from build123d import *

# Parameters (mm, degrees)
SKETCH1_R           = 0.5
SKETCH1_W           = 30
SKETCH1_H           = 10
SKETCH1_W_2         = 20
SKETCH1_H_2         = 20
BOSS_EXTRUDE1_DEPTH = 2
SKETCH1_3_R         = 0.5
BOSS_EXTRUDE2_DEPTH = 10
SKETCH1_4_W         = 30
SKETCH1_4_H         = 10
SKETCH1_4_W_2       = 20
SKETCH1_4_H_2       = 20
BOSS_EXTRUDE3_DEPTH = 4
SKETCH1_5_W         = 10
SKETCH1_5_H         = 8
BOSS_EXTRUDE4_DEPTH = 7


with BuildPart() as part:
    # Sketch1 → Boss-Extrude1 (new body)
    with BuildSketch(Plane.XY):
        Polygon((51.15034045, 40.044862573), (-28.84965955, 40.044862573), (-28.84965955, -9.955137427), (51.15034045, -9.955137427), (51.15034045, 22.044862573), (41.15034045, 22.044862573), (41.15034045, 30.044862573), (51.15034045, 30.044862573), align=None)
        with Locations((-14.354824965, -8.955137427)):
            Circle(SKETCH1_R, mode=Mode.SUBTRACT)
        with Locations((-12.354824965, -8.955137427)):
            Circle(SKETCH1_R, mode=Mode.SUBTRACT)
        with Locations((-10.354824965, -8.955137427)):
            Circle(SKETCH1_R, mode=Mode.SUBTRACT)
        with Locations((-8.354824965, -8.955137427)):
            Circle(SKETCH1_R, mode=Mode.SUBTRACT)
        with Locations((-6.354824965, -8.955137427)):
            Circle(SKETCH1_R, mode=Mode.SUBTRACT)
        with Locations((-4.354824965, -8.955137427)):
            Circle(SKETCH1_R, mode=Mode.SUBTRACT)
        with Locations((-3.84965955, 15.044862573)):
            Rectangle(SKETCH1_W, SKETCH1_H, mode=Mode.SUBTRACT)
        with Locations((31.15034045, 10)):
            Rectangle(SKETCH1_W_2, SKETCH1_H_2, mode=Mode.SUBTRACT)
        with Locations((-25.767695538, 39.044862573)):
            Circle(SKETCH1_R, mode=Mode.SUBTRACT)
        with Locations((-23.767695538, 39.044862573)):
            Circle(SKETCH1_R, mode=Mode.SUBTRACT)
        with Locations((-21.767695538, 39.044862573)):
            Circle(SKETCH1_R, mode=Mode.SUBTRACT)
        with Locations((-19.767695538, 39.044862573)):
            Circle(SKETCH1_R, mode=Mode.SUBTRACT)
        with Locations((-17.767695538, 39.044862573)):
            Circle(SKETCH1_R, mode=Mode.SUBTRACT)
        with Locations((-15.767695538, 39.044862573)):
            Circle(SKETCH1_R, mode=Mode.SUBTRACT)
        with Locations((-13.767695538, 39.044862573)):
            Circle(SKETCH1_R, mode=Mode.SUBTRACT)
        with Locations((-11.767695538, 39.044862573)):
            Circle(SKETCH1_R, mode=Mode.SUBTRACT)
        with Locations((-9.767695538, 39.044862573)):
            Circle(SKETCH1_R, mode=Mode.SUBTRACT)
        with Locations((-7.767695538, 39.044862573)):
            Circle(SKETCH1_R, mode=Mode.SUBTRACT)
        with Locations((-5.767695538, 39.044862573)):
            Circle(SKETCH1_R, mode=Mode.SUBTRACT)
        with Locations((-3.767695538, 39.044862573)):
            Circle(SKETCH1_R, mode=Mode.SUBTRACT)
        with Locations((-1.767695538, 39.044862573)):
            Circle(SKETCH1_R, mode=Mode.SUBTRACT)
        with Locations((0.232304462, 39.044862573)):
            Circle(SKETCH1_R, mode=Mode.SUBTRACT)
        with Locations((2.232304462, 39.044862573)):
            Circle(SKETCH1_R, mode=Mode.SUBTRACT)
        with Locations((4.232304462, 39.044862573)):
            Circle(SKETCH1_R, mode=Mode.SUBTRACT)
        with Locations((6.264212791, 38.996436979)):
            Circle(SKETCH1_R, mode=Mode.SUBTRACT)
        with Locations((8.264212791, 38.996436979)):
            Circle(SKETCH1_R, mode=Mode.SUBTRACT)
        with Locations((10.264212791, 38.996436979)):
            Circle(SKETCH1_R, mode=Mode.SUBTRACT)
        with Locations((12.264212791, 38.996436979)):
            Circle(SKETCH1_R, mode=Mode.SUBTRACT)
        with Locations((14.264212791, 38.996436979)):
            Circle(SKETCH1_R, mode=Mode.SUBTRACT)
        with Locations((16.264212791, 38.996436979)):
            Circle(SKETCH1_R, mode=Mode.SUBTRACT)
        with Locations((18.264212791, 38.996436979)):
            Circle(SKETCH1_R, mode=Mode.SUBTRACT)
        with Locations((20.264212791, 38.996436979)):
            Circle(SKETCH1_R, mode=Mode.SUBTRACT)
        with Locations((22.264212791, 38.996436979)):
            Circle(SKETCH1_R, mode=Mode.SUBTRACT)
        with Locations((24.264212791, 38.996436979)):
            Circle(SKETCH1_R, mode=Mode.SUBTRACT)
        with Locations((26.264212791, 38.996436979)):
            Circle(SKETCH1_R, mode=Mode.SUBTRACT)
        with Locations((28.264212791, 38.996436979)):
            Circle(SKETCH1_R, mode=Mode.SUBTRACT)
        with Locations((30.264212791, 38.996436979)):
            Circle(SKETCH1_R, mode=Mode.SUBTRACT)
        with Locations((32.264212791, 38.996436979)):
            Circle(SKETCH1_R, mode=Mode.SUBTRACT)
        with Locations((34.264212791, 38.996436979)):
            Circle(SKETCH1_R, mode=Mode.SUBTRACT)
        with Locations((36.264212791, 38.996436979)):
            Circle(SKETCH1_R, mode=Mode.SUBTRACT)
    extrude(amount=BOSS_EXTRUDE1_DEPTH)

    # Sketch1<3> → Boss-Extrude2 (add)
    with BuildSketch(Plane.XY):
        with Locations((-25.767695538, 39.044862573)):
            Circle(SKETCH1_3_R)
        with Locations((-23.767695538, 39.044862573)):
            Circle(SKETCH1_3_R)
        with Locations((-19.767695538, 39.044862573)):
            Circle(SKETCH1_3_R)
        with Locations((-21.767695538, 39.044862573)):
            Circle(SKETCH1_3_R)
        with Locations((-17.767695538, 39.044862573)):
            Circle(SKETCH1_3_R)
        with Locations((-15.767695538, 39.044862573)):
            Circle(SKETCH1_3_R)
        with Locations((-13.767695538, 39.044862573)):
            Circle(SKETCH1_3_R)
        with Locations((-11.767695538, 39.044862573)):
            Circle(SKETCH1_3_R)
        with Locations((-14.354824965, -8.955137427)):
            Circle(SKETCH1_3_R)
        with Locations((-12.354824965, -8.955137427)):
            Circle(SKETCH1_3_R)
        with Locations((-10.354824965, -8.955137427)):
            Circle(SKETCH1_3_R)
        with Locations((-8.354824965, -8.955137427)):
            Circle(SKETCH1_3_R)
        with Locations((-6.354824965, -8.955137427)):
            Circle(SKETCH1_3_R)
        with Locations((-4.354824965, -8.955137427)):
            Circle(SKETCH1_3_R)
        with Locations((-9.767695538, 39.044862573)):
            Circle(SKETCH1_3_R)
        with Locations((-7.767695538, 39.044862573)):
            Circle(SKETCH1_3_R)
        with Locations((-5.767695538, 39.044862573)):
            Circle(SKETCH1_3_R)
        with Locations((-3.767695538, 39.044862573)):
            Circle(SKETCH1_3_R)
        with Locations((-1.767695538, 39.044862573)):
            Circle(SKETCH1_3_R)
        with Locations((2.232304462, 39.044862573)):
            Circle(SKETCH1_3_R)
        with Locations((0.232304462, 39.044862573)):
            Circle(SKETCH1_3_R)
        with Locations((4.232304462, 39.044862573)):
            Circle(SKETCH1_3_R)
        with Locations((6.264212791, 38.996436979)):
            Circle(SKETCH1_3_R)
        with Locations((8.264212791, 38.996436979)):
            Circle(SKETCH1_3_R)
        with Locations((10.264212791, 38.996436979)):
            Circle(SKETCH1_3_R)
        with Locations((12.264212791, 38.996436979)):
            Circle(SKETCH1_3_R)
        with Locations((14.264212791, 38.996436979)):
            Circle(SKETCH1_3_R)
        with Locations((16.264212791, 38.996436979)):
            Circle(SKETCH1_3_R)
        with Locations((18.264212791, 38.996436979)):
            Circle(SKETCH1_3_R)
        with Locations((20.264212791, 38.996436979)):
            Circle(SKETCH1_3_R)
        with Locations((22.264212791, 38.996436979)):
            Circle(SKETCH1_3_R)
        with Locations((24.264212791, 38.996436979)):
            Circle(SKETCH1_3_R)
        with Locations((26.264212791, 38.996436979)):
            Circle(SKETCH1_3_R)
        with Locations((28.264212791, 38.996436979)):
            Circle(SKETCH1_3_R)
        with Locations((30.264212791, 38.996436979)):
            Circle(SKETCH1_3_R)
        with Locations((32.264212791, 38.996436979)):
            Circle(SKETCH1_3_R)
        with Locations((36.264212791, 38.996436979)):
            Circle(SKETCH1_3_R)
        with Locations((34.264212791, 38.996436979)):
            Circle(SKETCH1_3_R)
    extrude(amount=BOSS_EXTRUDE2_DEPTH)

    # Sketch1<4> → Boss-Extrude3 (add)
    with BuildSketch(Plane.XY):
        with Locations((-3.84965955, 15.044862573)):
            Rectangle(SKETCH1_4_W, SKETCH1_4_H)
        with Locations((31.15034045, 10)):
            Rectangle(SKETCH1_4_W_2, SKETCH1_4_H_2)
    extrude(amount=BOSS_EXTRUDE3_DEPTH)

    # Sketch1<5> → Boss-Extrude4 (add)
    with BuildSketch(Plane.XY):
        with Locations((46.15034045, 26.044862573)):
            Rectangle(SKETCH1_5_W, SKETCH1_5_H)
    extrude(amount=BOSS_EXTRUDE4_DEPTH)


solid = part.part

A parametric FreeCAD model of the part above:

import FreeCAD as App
import Part
import Sketcher

V = App.Vector
Q = App.Units.Quantity


def add_polygon(sketch, points):
    """Adds a closed chain of lines whose ends are joined by coincident constraints."""
    first, n = sketch.GeometryCount, len(points)
    for a, b in zip(points, points[1:] + points[:1]):
        sketch.addGeometry(Part.LineSegment(App.Vector(*a, 0), App.Vector(*b, 0)), False)
    for i in range(n):
        sketch.addConstraint(Sketcher.Constraint("Coincident", first + i, 2, first + (i + 1) % n, 1))

doc = App.newDocument("Part")
body = doc.addObject("PartDesign::Body", "Body")

sketch1 = body.newObject("Sketcher::SketchObject", "Sketch")
sketch1.AttachmentSupport = (doc.getObject("XY_Plane"), [""])
sketch1.MapMode = "FlatFace"
add_polygon(sketch1, [(51.2, 40), (-28.8, 40), (-28.8, -10), (51.2, -10), (51.2, 22), (41.2, 22), (41.2, 30), (51.2, 30)])
sketch1.addGeometry(Part.Circle(V(-14.4, -9, 0), V(0, 0, 1), 0.5), False)
sketch1.addGeometry(Part.Circle(V(-12.4, -9, 0), V(0, 0, 1), 0.5), False)
sketch1.addGeometry(Part.Circle(V(-10.4, -9, 0), V(0, 0, 1), 0.5), False)
sketch1.addGeometry(Part.Circle(V(-8.4, -9, 0), V(0, 0, 1), 0.5), False)
sketch1.addGeometry(Part.Circle(V(-6.4, -9, 0), V(0, 0, 1), 0.5), False)
sketch1.addGeometry(Part.Circle(V(-4.4, -9, 0), V(0, 0, 1), 0.5), False)
add_polygon(sketch1, [(11.2, 10), (-18.8, 10), (-18.8, 20), (11.2, 20)])
add_polygon(sketch1, [(41.2, 0), (21.2, 0), (21.2, 20), (41.2, 20)])
sketch1.addGeometry(Part.Circle(V(-25.8, 39, 0), V(0, 0, 1), 0.5), False)
sketch1.addGeometry(Part.Circle(V(-23.8, 39, 0), V(0, 0, 1), 0.5), False)
sketch1.addGeometry(Part.Circle(V(-21.8, 39, 0), V(0, 0, 1), 0.5), False)
sketch1.addGeometry(Part.Circle(V(-19.8, 39, 0), V(0, 0, 1), 0.5), False)
sketch1.addGeometry(Part.Circle(V(-17.8, 39, 0), V(0, 0, 1), 0.5), False)
sketch1.addGeometry(Part.Circle(V(-15.8, 39, 0), V(0, 0, 1), 0.5), False)
sketch1.addGeometry(Part.Circle(V(-13.8, 39, 0), V(0, 0, 1), 0.5), False)
sketch1.addGeometry(Part.Circle(V(-11.8, 39, 0), V(0, 0, 1), 0.5), False)
sketch1.addGeometry(Part.Circle(V(-9.8, 39, 0), V(0, 0, 1), 0.5), False)
sketch1.addGeometry(Part.Circle(V(-7.8, 39, 0), V(0, 0, 1), 0.5), False)
sketch1.addGeometry(Part.Circle(V(-5.8, 39, 0), V(0, 0, 1), 0.5), False)
sketch1.addGeometry(Part.Circle(V(-3.8, 39, 0), V(0, 0, 1), 0.5), False)
sketch1.addGeometry(Part.Circle(V(-1.8, 39, 0), V(0, 0, 1), 0.5), False)
sketch1.addGeometry(Part.Circle(V(0.2, 39, 0), V(0, 0, 1), 0.5), False)
sketch1.addGeometry(Part.Circle(V(2.2, 39, 0), V(0, 0, 1), 0.5), False)
sketch1.addGeometry(Part.Circle(V(4.2, 39, 0), V(0, 0, 1), 0.5), False)
sketch1.addGeometry(Part.Circle(V(6.3, 39, 0), V(0, 0, 1), 0.5), False)
sketch1.addGeometry(Part.Circle(V(8.3, 39, 0), V(0, 0, 1), 0.5), False)
sketch1.addGeometry(Part.Circle(V(10.3, 39, 0), V(0, 0, 1), 0.5), False)
sketch1.addGeometry(Part.Circle(V(12.3, 39, 0), V(0, 0, 1), 0.5), False)
sketch1.addGeometry(Part.Circle(V(14.3, 39, 0), V(0, 0, 1), 0.5), False)
sketch1.addGeometry(Part.Circle(V(16.3, 39, 0), V(0, 0, 1), 0.5), False)
sketch1.addGeometry(Part.Circle(V(18.3, 39, 0), V(0, 0, 1), 0.5), False)
sketch1.addGeometry(Part.Circle(V(20.3, 39, 0), V(0, 0, 1), 0.5), False)
sketch1.addGeometry(Part.Circle(V(22.3, 39, 0), V(0, 0, 1), 0.5), False)
sketch1.addGeometry(Part.Circle(V(24.3, 39, 0), V(0, 0, 1), 0.5), False)
sketch1.addGeometry(Part.Circle(V(26.3, 39, 0), V(0, 0, 1), 0.5), False)
sketch1.addGeometry(Part.Circle(V(28.3, 39, 0), V(0, 0, 1), 0.5), False)
sketch1.addGeometry(Part.Circle(V(30.3, 39, 0), V(0, 0, 1), 0.5), False)
sketch1.addGeometry(Part.Circle(V(32.3, 39, 0), V(0, 0, 1), 0.5), False)
sketch1.addGeometry(Part.Circle(V(34.3, 39, 0), V(0, 0, 1), 0.5), False)
sketch1.addGeometry(Part.Circle(V(36.3, 39, 0), V(0, 0, 1), 0.5), False)
sketch1.addConstraint(Sketcher.Constraint("Horizontal", 0))
sketch1.addConstraint(Sketcher.Constraint("Vertical", 1))
sketch1.addConstraint(Sketcher.Constraint("Horizontal", 2))
sketch1.addConstraint(Sketcher.Constraint("Vertical", 3))
sketch1.addConstraint(Sketcher.Constraint("Horizontal", 4))
sketch1.addConstraint(Sketcher.Constraint("Vertical", 5))
sketch1.addConstraint(Sketcher.Constraint("Horizontal", 6))
sketch1.addConstraint(Sketcher.Constraint("Vertical", 7))
sketch1.addConstraint(Sketcher.Constraint("Horizontal", 14))
sketch1.addConstraint(Sketcher.Constraint("Vertical", 15))
sketch1.addConstraint(Sketcher.Constraint("Horizontal", 16))
sketch1.addConstraint(Sketcher.Constraint("Vertical", 17))
sketch1.addConstraint(Sketcher.Constraint("Horizontal", 18))
sketch1.addConstraint(Sketcher.Constraint("Vertical", 19))
sketch1.addConstraint(Sketcher.Constraint("Horizontal", 20))
sketch1.addConstraint(Sketcher.Constraint("Vertical", 21))
sketch1.addConstraint(Sketcher.Constraint("Equal", 8, 9))
sketch1.addConstraint(Sketcher.Constraint("Equal", 9, 10))
sketch1.addConstraint(Sketcher.Constraint("Equal", 10, 11))
sketch1.addConstraint(Sketcher.Constraint("Equal", 11, 12))
sketch1.addConstraint(Sketcher.Constraint("Equal", 12, 13))
sketch1.addConstraint(Sketcher.Constraint("Equal", 13, 22))
sketch1.addConstraint(Sketcher.Constraint("Equal", 22, 23))
sketch1.addConstraint(Sketcher.Constraint("Equal", 23, 24))
sketch1.addConstraint(Sketcher.Constraint("Equal", 24, 25))
sketch1.addConstraint(Sketcher.Constraint("Equal", 25, 26))
sketch1.addConstraint(Sketcher.Constraint("Equal", 26, 27))
sketch1.addConstraint(Sketcher.Constraint("Equal", 27, 28))
sketch1.addConstraint(Sketcher.Constraint("Equal", 28, 29))
sketch1.addConstraint(Sketcher.Constraint("Equal", 29, 30))
sketch1.addConstraint(Sketcher.Constraint("Equal", 30, 31))
sketch1.addConstraint(Sketcher.Constraint("Equal", 31, 32))
sketch1.addConstraint(Sketcher.Constraint("Equal", 32, 33))
sketch1.addConstraint(Sketcher.Constraint("Equal", 33, 34))
sketch1.addConstraint(Sketcher.Constraint("Equal", 34, 35))
sketch1.addConstraint(Sketcher.Constraint("Equal", 35, 36))
sketch1.addConstraint(Sketcher.Constraint("Equal", 36, 37))
sketch1.addConstraint(Sketcher.Constraint("Equal", 37, 38))
sketch1.addConstraint(Sketcher.Constraint("Equal", 38, 39))
sketch1.addConstraint(Sketcher.Constraint("Equal", 39, 40))
sketch1.addConstraint(Sketcher.Constraint("Equal", 40, 41))
sketch1.addConstraint(Sketcher.Constraint("Equal", 41, 42))
sketch1.addConstraint(Sketcher.Constraint("Equal", 42, 43))
sketch1.addConstraint(Sketcher.Constraint("Equal", 43, 44))
sketch1.addConstraint(Sketcher.Constraint("Equal", 44, 45))
sketch1.addConstraint(Sketcher.Constraint("Equal", 45, 46))
sketch1.addConstraint(Sketcher.Constraint("Equal", 46, 47))
sketch1.addConstraint(Sketcher.Constraint("Equal", 47, 48))
sketch1.addConstraint(Sketcher.Constraint("Equal", 48, 49))
sketch1.addConstraint(Sketcher.Constraint("Equal", 49, 50))
sketch1.addConstraint(Sketcher.Constraint("Equal", 50, 51))
sketch1.addConstraint(Sketcher.Constraint("Equal", 51, 52))
sketch1.addConstraint(Sketcher.Constraint("Equal", 52, 53))
sketch1.addConstraint(Sketcher.Constraint("PointOnObject", 18, 2, -1))
sketch1.addConstraint(Sketcher.Constraint("Horizontal", 8, 3, 9, 3))
sketch1.addConstraint(Sketcher.Constraint("Horizontal", 9, 3, 10, 3))
sketch1.addConstraint(Sketcher.Constraint("Horizontal", 10, 3, 11, 3))
sketch1.addConstraint(Sketcher.Constraint("Horizontal", 11, 3, 12, 3))
sketch1.addConstraint(Sketcher.Constraint("Horizontal", 12, 3, 13, 3))
sketch1.addConstraint(Sketcher.Constraint("Horizontal", 22, 3, 23, 3))
sketch1.addConstraint(Sketcher.Constraint("Horizontal", 23, 3, 24, 3))
sketch1.addConstraint(Sketcher.Constraint("Horizontal", 24, 3, 25, 3))
sketch1.addConstraint(Sketcher.Constraint("Horizontal", 25, 3, 26, 3))
sketch1.addConstraint(Sketcher.Constraint("Horizontal", 26, 3, 27, 3))
sketch1.addConstraint(Sketcher.Constraint("Horizontal", 27, 3, 28, 3))
sketch1.addConstraint(Sketcher.Constraint("Horizontal", 28, 3, 29, 3))
sketch1.addConstraint(Sketcher.Constraint("Horizontal", 29, 3, 30, 3))
sketch1.addConstraint(Sketcher.Constraint("Horizontal", 30, 3, 31, 3))
sketch1.addConstraint(Sketcher.Constraint("Horizontal", 31, 3, 32, 3))
sketch1.addConstraint(Sketcher.Constraint("Horizontal", 32, 3, 33, 3))
sketch1.addConstraint(Sketcher.Constraint("Horizontal", 33, 3, 34, 3))
sketch1.addConstraint(Sketcher.Constraint("Horizontal", 34, 3, 35, 3))
sketch1.addConstraint(Sketcher.Constraint("Horizontal", 35, 3, 36, 3))
sketch1.addConstraint(Sketcher.Constraint("Horizontal", 36, 3, 37, 3))
sketch1.addConstraint(Sketcher.Constraint("Horizontal", 38, 3, 39, 3))
sketch1.addConstraint(Sketcher.Constraint("Horizontal", 39, 3, 40, 3))
sketch1.addConstraint(Sketcher.Constraint("Horizontal", 40, 3, 41, 3))
sketch1.addConstraint(Sketcher.Constraint("Horizontal", 41, 3, 42, 3))
sketch1.addConstraint(Sketcher.Constraint("Horizontal", 42, 3, 43, 3))
sketch1.addConstraint(Sketcher.Constraint("Horizontal", 43, 3, 44, 3))
sketch1.addConstraint(Sketcher.Constraint("Horizontal", 44, 3, 45, 3))
sketch1.addConstraint(Sketcher.Constraint("Horizontal", 45, 3, 46, 3))
sketch1.addConstraint(Sketcher.Constraint("Horizontal", 46, 3, 47, 3))
sketch1.addConstraint(Sketcher.Constraint("Horizontal", 47, 3, 48, 3))
sketch1.addConstraint(Sketcher.Constraint("Horizontal", 48, 3, 49, 3))
sketch1.addConstraint(Sketcher.Constraint("Horizontal", 49, 3, 50, 3))
sketch1.addConstraint(Sketcher.Constraint("Horizontal", 50, 3, 51, 3))
sketch1.addConstraint(Sketcher.Constraint("Horizontal", 51, 3, 52, 3))
sketch1.addConstraint(Sketcher.Constraint("Horizontal", 52, 3, 53, 3))
sketch1.addConstraint(Sketcher.Constraint("Vertical", 3, 2, 6, 2))
sketch1.addConstraint(Sketcher.Constraint("Vertical", 5, 2, 20, 2))
sketch1.addConstraint(Sketcher.Constraint("Equal", 6, 7))
sketch1.addConstraint(Sketcher.Constraint("Equal", 7, 15))
sketch1.addConstraint(Sketcher.Constraint("Equal", 20, 19))
sketch1.addConstraint(Sketcher.Constraint("Diameter", 8, Q("1 mm")))
sketch1.addConstraint(Sketcher.Constraint("DistanceX", 0, 2, 0, 1, Q("80 mm")))
sketch1.addConstraint(Sketcher.Constraint("DistanceX", 4, 2, 4, 1, Q("10 mm")))
sketch1.addConstraint(Sketcher.Constraint("DistanceX", 14, 2, 14, 1, Q("30 mm")))
sketch1.addConstraint(Sketcher.Constraint("DistanceX", 18, 2, 18, 1, Q("20 mm")))
sketch1.addConstraint(Sketcher.Constraint("DistanceY", 1, 2, 1, 1, Q("50 mm")))
sketch1.addConstraint(Sketcher.Constraint("DistanceY", 3, 1, 3, 2, Q("32 mm")))
sketch1.addConstraint(Sketcher.Constraint("DistanceX", 8, 3, 9, 3, Q("2 mm")))
sketch1.addConstraint(Sketcher.Constraint("DistanceX", 9, 3, 10, 3, Q("2 mm")))
sketch1.addConstraint(Sketcher.Constraint("DistanceX", 10, 3, 11, 3, Q("2 mm")))
sketch1.addConstraint(Sketcher.Constraint("DistanceX", 11, 3, 12, 3, Q("2 mm")))
sketch1.addConstraint(Sketcher.Constraint("DistanceX", 12, 3, 13, 3, Q("2 mm")))
sketch1.addConstraint(Sketcher.Constraint("DistanceY", 8, 3, 22, 3, Q("48 mm")))
sketch1.addConstraint(Sketcher.Constraint("DistanceX", 22, 3, 23, 3, Q("2 mm")))
sketch1.addConstraint(Sketcher.Constraint("DistanceX", 23, 3, 24, 3, Q("2 mm")))
sketch1.addConstraint(Sketcher.Constraint("DistanceX", 24, 3, 25, 3, Q("2 mm")))
sketch1.addConstraint(Sketcher.Constraint("DistanceX", 25, 3, 26, 3, Q("2 mm")))
sketch1.addConstraint(Sketcher.Constraint("DistanceX", 26, 3, 27, 3, Q("2 mm")))
sketch1.addConstraint(Sketcher.Constraint("DistanceX", 27, 3, 28, 3, Q("2 mm")))
sketch1.addConstraint(Sketcher.Constraint("DistanceX", 28, 3, 29, 3, Q("2 mm")))
sketch1.addConstraint(Sketcher.Constraint("DistanceX", 29, 3, 30, 3, Q("2 mm")))
sketch1.addConstraint(Sketcher.Constraint("DistanceX", 30, 3, 31, 3, Q("2 mm")))
sketch1.addConstraint(Sketcher.Constraint("DistanceX", 31, 3, 32, 3, Q("2 mm")))
sketch1.addConstraint(Sketcher.Constraint("DistanceX", 32, 3, 33, 3, Q("2 mm")))
sketch1.addConstraint(Sketcher.Constraint("DistanceX", 33, 3, 34, 3, Q("2 mm")))
sketch1.addConstraint(Sketcher.Constraint("DistanceX", 34, 3, 35, 3, Q("2 mm")))
sketch1.addConstraint(Sketcher.Constraint("DistanceX", 35, 3, 36, 3, Q("2 mm")))
sketch1.addConstraint(Sketcher.Constraint("DistanceX", 36, 3, 37, 3, Q("2 mm")))
sketch1.addConstraint(Sketcher.Constraint("DistanceX", 38, 3, 39, 3, Q("2 mm")))
sketch1.addConstraint(Sketcher.Constraint("DistanceX", 39, 3, 40, 3, Q("2 mm")))
sketch1.addConstraint(Sketcher.Constraint("DistanceX", 40, 3, 41, 3, Q("2 mm")))
sketch1.addConstraint(Sketcher.Constraint("DistanceX", 41, 3, 42, 3, Q("2 mm")))
sketch1.addConstraint(Sketcher.Constraint("DistanceX", 42, 3, 43, 3, Q("2 mm")))
sketch1.addConstraint(Sketcher.Constraint("DistanceX", 43, 3, 44, 3, Q("2 mm")))
sketch1.addConstraint(Sketcher.Constraint("DistanceX", 44, 3, 45, 3, Q("2 mm")))
sketch1.addConstraint(Sketcher.Constraint("DistanceX", 45, 3, 46, 3, Q("2 mm")))
sketch1.addConstraint(Sketcher.Constraint("DistanceX", 46, 3, 47, 3, Q("2 mm")))
sketch1.addConstraint(Sketcher.Constraint("DistanceX", 47, 3, 48, 3, Q("2 mm")))
sketch1.addConstraint(Sketcher.Constraint("DistanceX", 48, 3, 49, 3, Q("2 mm")))
sketch1.addConstraint(Sketcher.Constraint("DistanceX", 49, 3, 50, 3, Q("2 mm")))
sketch1.addConstraint(Sketcher.Constraint("DistanceX", 50, 3, 51, 3, Q("2 mm")))
sketch1.addConstraint(Sketcher.Constraint("DistanceX", 51, 3, 52, 3, Q("2 mm")))
sketch1.addConstraint(Sketcher.Constraint("DistanceX", 52, 3, 53, 3, Q("2 mm")))
sketch1.addConstraint(Sketcher.Constraint("DistanceY", 22, 3, 0, 2, Q("1 mm")))
sketch1.addConstraint(Sketcher.Constraint("DistanceY", 8, 3, 14, 2, Q("19 mm")))
sketch1.addConstraint(Sketcher.Constraint("DistanceX", 1, 2, 14, 2, Q("10 mm")))
sketch1.addConstraint(Sketcher.Constraint("DistanceX", 0, 2, -1, 1, Q("28.84966 mm")))
sketch1.addConstraint(Sketcher.Constraint("DistanceX", 22, 3, 8, 3, Q("11.412871 mm")))
sketch1.addConstraint(Sketcher.Constraint("DistanceX", 37, 3, 38, 3, Q("2.031908 mm")))
sketch1.addConstraint(Sketcher.Constraint("DistanceX", 8, 3, -1, 1, Q("14.354825 mm")))
sketch1.addConstraint(Sketcher.Constraint("DistanceY", 8, 3, -1, 1, Q("8.955137 mm")))
sketch1.addConstraint(Sketcher.Constraint("DistanceY", -1, 1, 38, 3, Q("38.996437 mm")))
pad1 = body.newObject("PartDesign::Pad", "Pad")
pad1.Profile = sketch1
pad1.Length = 2

sketch2 = body.newObject("Sketcher::SketchObject", "Sketch001")
sketch2.AttachmentSupport = (doc.getObject("XY_Plane"), [""])
sketch2.MapMode = "FlatFace"
sketch2.addGeometry(Part.Circle(V(-25.8, 39, 0), V(0, 0, 1), 0.5), False)
sketch2.addGeometry(Part.Circle(V(-23.8, 39, 0), V(0, 0, 1), 0.5), False)
sketch2.addGeometry(Part.Circle(V(-19.8, 39, 0), V(0, 0, 1), 0.5), False)
sketch2.addGeometry(Part.Circle(V(-21.8, 39, 0), V(0, 0, 1), 0.5), False)
sketch2.addGeometry(Part.Circle(V(-17.8, 39, 0), V(0, 0, 1), 0.5), False)
sketch2.addGeometry(Part.Circle(V(-15.8, 39, 0), V(0, 0, 1), 0.5), False)
sketch2.addGeometry(Part.Circle(V(-13.8, 39, 0), V(0, 0, 1), 0.5), False)
sketch2.addGeometry(Part.Circle(V(-11.8, 39, 0), V(0, 0, 1), 0.5), False)
sketch2.addGeometry(Part.Circle(V(-14.4, -9, 0), V(0, 0, 1), 0.5), False)
sketch2.addGeometry(Part.Circle(V(-12.4, -9, 0), V(0, 0, 1), 0.5), False)
sketch2.addGeometry(Part.Circle(V(-10.4, -9, 0), V(0, 0, 1), 0.5), False)
sketch2.addGeometry(Part.Circle(V(-8.4, -9, 0), V(0, 0, 1), 0.5), False)
sketch2.addGeometry(Part.Circle(V(-6.4, -9, 0), V(0, 0, 1), 0.5), False)
sketch2.addGeometry(Part.Circle(V(-4.4, -9, 0), V(0, 0, 1), 0.5), False)
sketch2.addGeometry(Part.Circle(V(-9.8, 39, 0), V(0, 0, 1), 0.5), False)
sketch2.addGeometry(Part.Circle(V(-7.8, 39, 0), V(0, 0, 1), 0.5), False)
sketch2.addGeometry(Part.Circle(V(-5.8, 39, 0), V(0, 0, 1), 0.5), False)
sketch2.addGeometry(Part.Circle(V(-3.8, 39, 0), V(0, 0, 1), 0.5), False)
sketch2.addGeometry(Part.Circle(V(-1.8, 39, 0), V(0, 0, 1), 0.5), False)
sketch2.addGeometry(Part.Circle(V(2.2, 39, 0), V(0, 0, 1), 0.5), False)
sketch2.addGeometry(Part.Circle(V(0.2, 39, 0), V(0, 0, 1), 0.5), False)
sketch2.addGeometry(Part.Circle(V(4.2, 39, 0), V(0, 0, 1), 0.5), False)
sketch2.addGeometry(Part.Circle(V(6.3, 39, 0), V(0, 0, 1), 0.5), False)
sketch2.addGeometry(Part.Circle(V(8.3, 39, 0), V(0, 0, 1), 0.5), False)
sketch2.addGeometry(Part.Circle(V(10.3, 39, 0), V(0, 0, 1), 0.5), False)
sketch2.addGeometry(Part.Circle(V(12.3, 39, 0), V(0, 0, 1), 0.5), False)
sketch2.addGeometry(Part.Circle(V(14.3, 39, 0), V(0, 0, 1), 0.5), False)
sketch2.addGeometry(Part.Circle(V(16.3, 39, 0), V(0, 0, 1), 0.5), False)
sketch2.addGeometry(Part.Circle(V(18.3, 39, 0), V(0, 0, 1), 0.5), False)
sketch2.addGeometry(Part.Circle(V(20.3, 39, 0), V(0, 0, 1), 0.5), False)
sketch2.addGeometry(Part.Circle(V(22.3, 39, 0), V(0, 0, 1), 0.5), False)
sketch2.addGeometry(Part.Circle(V(24.3, 39, 0), V(0, 0, 1), 0.5), False)
sketch2.addGeometry(Part.Circle(V(26.3, 39, 0), V(0, 0, 1), 0.5), False)
sketch2.addGeometry(Part.Circle(V(28.3, 39, 0), V(0, 0, 1), 0.5), False)
sketch2.addGeometry(Part.Circle(V(30.3, 39, 0), V(0, 0, 1), 0.5), False)
sketch2.addGeometry(Part.Circle(V(32.3, 39, 0), V(0, 0, 1), 0.5), False)
sketch2.addGeometry(Part.Circle(V(36.3, 39, 0), V(0, 0, 1), 0.5), False)
sketch2.addGeometry(Part.Circle(V(34.3, 39, 0), V(0, 0, 1), 0.5), False)
sketch2.addConstraint(Sketcher.Constraint("Equal", 0, 1))
sketch2.addConstraint(Sketcher.Constraint("Equal", 1, 2))
sketch2.addConstraint(Sketcher.Constraint("Equal", 2, 3))
sketch2.addConstraint(Sketcher.Constraint("Equal", 3, 4))
sketch2.addConstraint(Sketcher.Constraint("Equal", 4, 5))
sketch2.addConstraint(Sketcher.Constraint("Equal", 5, 6))
sketch2.addConstraint(Sketcher.Constraint("Equal", 6, 7))
sketch2.addConstraint(Sketcher.Constraint("Equal", 7, 8))
sketch2.addConstraint(Sketcher.Constraint("Equal", 8, 9))
sketch2.addConstraint(Sketcher.Constraint("Equal", 9, 10))
sketch2.addConstraint(Sketcher.Constraint("Equal", 10, 11))
sketch2.addConstraint(Sketcher.Constraint("Equal", 11, 12))
sketch2.addConstraint(Sketcher.Constraint("Equal", 12, 13))
sketch2.addConstraint(Sketcher.Constraint("Equal", 13, 14))
sketch2.addConstraint(Sketcher.Constraint("Equal", 14, 15))
sketch2.addConstraint(Sketcher.Constraint("Equal", 15, 16))
sketch2.addConstraint(Sketcher.Constraint("Equal", 16, 17))
sketch2.addConstraint(Sketcher.Constraint("Equal", 17, 18))
sketch2.addConstraint(Sketcher.Constraint("Equal", 18, 19))
sketch2.addConstraint(Sketcher.Constraint("Equal", 19, 20))
sketch2.addConstraint(Sketcher.Constraint("Equal", 20, 21))
sketch2.addConstraint(Sketcher.Constraint("Equal", 21, 22))
sketch2.addConstraint(Sketcher.Constraint("Equal", 22, 23))
sketch2.addConstraint(Sketcher.Constraint("Equal", 23, 24))
sketch2.addConstraint(Sketcher.Constraint("Equal", 24, 25))
sketch2.addConstraint(Sketcher.Constraint("Equal", 25, 26))
sketch2.addConstraint(Sketcher.Constraint("Equal", 26, 27))
sketch2.addConstraint(Sketcher.Constraint("Equal", 27, 28))
sketch2.addConstraint(Sketcher.Constraint("Equal", 28, 29))
sketch2.addConstraint(Sketcher.Constraint("Equal", 29, 30))
sketch2.addConstraint(Sketcher.Constraint("Equal", 30, 31))
sketch2.addConstraint(Sketcher.Constraint("Equal", 31, 32))
sketch2.addConstraint(Sketcher.Constraint("Equal", 32, 33))
sketch2.addConstraint(Sketcher.Constraint("Equal", 33, 34))
sketch2.addConstraint(Sketcher.Constraint("Equal", 34, 35))
sketch2.addConstraint(Sketcher.Constraint("Equal", 35, 36))
sketch2.addConstraint(Sketcher.Constraint("Equal", 36, 37))
sketch2.addConstraint(Sketcher.Constraint("Horizontal", 0, 3, 1, 3))
sketch2.addConstraint(Sketcher.Constraint("Horizontal", 1, 3, 2, 3))
sketch2.addConstraint(Sketcher.Constraint("Horizontal", 2, 3, 3, 3))
sketch2.addConstraint(Sketcher.Constraint("Horizontal", 3, 3, 4, 3))
sketch2.addConstraint(Sketcher.Constraint("Horizontal", 4, 3, 5, 3))
sketch2.addConstraint(Sketcher.Constraint("Horizontal", 5, 3, 6, 3))
sketch2.addConstraint(Sketcher.Constraint("Horizontal", 6, 3, 7, 3))
sketch2.addConstraint(Sketcher.Constraint("Horizontal", 8, 3, 9, 3))
sketch2.addConstraint(Sketcher.Constraint("Horizontal", 9, 3, 10, 3))
sketch2.addConstraint(Sketcher.Constraint("Horizontal", 10, 3, 11, 3))
sketch2.addConstraint(Sketcher.Constraint("Horizontal", 11, 3, 12, 3))
sketch2.addConstraint(Sketcher.Constraint("Horizontal", 12, 3, 13, 3))
sketch2.addConstraint(Sketcher.Constraint("Horizontal", 7, 3, 14, 3))
sketch2.addConstraint(Sketcher.Constraint("Horizontal", 14, 3, 15, 3))
sketch2.addConstraint(Sketcher.Constraint("Horizontal", 15, 3, 16, 3))
sketch2.addConstraint(Sketcher.Constraint("Horizontal", 16, 3, 17, 3))
sketch2.addConstraint(Sketcher.Constraint("Horizontal", 17, 3, 18, 3))
sketch2.addConstraint(Sketcher.Constraint("Horizontal", 18, 3, 19, 3))
sketch2.addConstraint(Sketcher.Constraint("Horizontal", 19, 3, 20, 3))
sketch2.addConstraint(Sketcher.Constraint("Horizontal", 20, 3, 21, 3))
sketch2.addConstraint(Sketcher.Constraint("Horizontal", 22, 3, 23, 3))
sketch2.addConstraint(Sketcher.Constraint("Horizontal", 23, 3, 24, 3))
sketch2.addConstraint(Sketcher.Constraint("Horizontal", 24, 3, 25, 3))
sketch2.addConstraint(Sketcher.Constraint("Horizontal", 25, 3, 26, 3))
sketch2.addConstraint(Sketcher.Constraint("Horizontal", 26, 3, 27, 3))
sketch2.addConstraint(Sketcher.Constraint("Horizontal", 27, 3, 28, 3))
sketch2.addConstraint(Sketcher.Constraint("Horizontal", 28, 3, 29, 3))
sketch2.addConstraint(Sketcher.Constraint("Horizontal", 29, 3, 30, 3))
sketch2.addConstraint(Sketcher.Constraint("Horizontal", 30, 3, 31, 3))
sketch2.addConstraint(Sketcher.Constraint("Horizontal", 31, 3, 32, 3))
sketch2.addConstraint(Sketcher.Constraint("Horizontal", 32, 3, 33, 3))
sketch2.addConstraint(Sketcher.Constraint("Horizontal", 33, 3, 34, 3))
sketch2.addConstraint(Sketcher.Constraint("Horizontal", 34, 3, 35, 3))
sketch2.addConstraint(Sketcher.Constraint("Horizontal", 35, 3, 36, 3))
sketch2.addConstraint(Sketcher.Constraint("Horizontal", 36, 3, 37, 3))
sketch2.addConstraint(Sketcher.Constraint("Diameter", 0, Q("1 mm")))
sketch2.addConstraint(Sketcher.Constraint("DistanceX", 0, 3, 1, 3, Q("2 mm")))
sketch2.addConstraint(Sketcher.Constraint("DistanceX", 1, 3, 2, 3, Q("4 mm")))
sketch2.addConstraint(Sketcher.Constraint("DistanceX", 1, 3, 3, 3, Q("2 mm")))
sketch2.addConstraint(Sketcher.Constraint("DistanceX", 2, 3, 4, 3, Q("2 mm")))
sketch2.addConstraint(Sketcher.Constraint("DistanceX", 4, 3, 5, 3, Q("2 mm")))
sketch2.addConstraint(Sketcher.Constraint("DistanceX", 5, 3, 6, 3, Q("2 mm")))
sketch2.addConstraint(Sketcher.Constraint("DistanceX", 6, 3, 7, 3, Q("2 mm")))
sketch2.addConstraint(Sketcher.Constraint("DistanceY", 8, 3, 6, 3, Q("48 mm")))
sketch2.addConstraint(Sketcher.Constraint("DistanceX", 8, 3, 9, 3, Q("2 mm")))
sketch2.addConstraint(Sketcher.Constraint("DistanceX", 9, 3, 10, 3, Q("2 mm")))
sketch2.addConstraint(Sketcher.Constraint("DistanceX", 10, 3, 11, 3, Q("2 mm")))
sketch2.addConstraint(Sketcher.Constraint("DistanceX", 11, 3, 12, 3, Q("2 mm")))
sketch2.addConstraint(Sketcher.Constraint("DistanceX", 12, 3, 13, 3, Q("2 mm")))
sketch2.addConstraint(Sketcher.Constraint("DistanceX", 7, 3, 14, 3, Q("2 mm")))
sketch2.addConstraint(Sketcher.Constraint("DistanceX", 14, 3, 15, 3, Q("2 mm")))
sketch2.addConstraint(Sketcher.Constraint("DistanceX", 15, 3, 16, 3, Q("2 mm")))
sketch2.addConstraint(Sketcher.Constraint("DistanceX", 16, 3, 17, 3, Q("2 mm")))
sketch2.addConstraint(Sketcher.Constraint("DistanceX", 17, 3, 18, 3, Q("2 mm")))
sketch2.addConstraint(Sketcher.Constraint("DistanceX", 18, 3, 19, 3, Q("4 mm")))
sketch2.addConstraint(Sketcher.Constraint("DistanceX", 18, 3, 20, 3, Q("2 mm")))
sketch2.addConstraint(Sketcher.Constraint("DistanceX", 19, 3, 21, 3, Q("2 mm")))
sketch2.addConstraint(Sketcher.Constraint("DistanceX", 22, 3, 23, 3, Q("2 mm")))
sketch2.addConstraint(Sketcher.Constraint("DistanceX", 23, 3, 24, 3, Q("2 mm")))
sketch2.addConstraint(Sketcher.Constraint("DistanceX", 24, 3, 25, 3, Q("2 mm")))
sketch2.addConstraint(Sketcher.Constraint("DistanceX", 25, 3, 26, 3, Q("2 mm")))
sketch2.addConstraint(Sketcher.Constraint("DistanceX", 26, 3, 27, 3, Q("2 mm")))
sketch2.addConstraint(Sketcher.Constraint("DistanceX", 27, 3, 28, 3, Q("2 mm")))
sketch2.addConstraint(Sketcher.Constraint("DistanceX", 28, 3, 29, 3, Q("2 mm")))
sketch2.addConstraint(Sketcher.Constraint("DistanceX", 29, 3, 30, 3, Q("2 mm")))
sketch2.addConstraint(Sketcher.Constraint("DistanceX", 30, 3, 31, 3, Q("2 mm")))
sketch2.addConstraint(Sketcher.Constraint("DistanceX", 31, 3, 32, 3, Q("2 mm")))
sketch2.addConstraint(Sketcher.Constraint("DistanceX", 32, 3, 33, 3, Q("2 mm")))
sketch2.addConstraint(Sketcher.Constraint("DistanceX", 33, 3, 34, 3, Q("2 mm")))
sketch2.addConstraint(Sketcher.Constraint("DistanceX", 34, 3, 35, 3, Q("2 mm")))
sketch2.addConstraint(Sketcher.Constraint("DistanceX", 35, 3, 36, 3, Q("4 mm")))
sketch2.addConstraint(Sketcher.Constraint("DistanceX", 35, 3, 37, 3, Q("2 mm")))
sketch2.addConstraint(Sketcher.Constraint("DistanceX", 8, 3, 6, 3, Q("0.587129 mm")))
sketch2.addConstraint(Sketcher.Constraint("DistanceX", 21, 3, 22, 3, Q("2.031908 mm")))
sketch2.addConstraint(Sketcher.Constraint("DistanceX", 0, 3, -1, 1, Q("25.767696 mm")))
sketch2.addConstraint(Sketcher.Constraint("DistanceY", -1, 1, 0, 3, Q("39.044863 mm")))
sketch2.addConstraint(Sketcher.Constraint("DistanceY", -1, 1, 22, 3, Q("38.996437 mm")))
pad2 = body.newObject("PartDesign::Pad", "Pad001")
pad2.Profile = sketch2
pad2.Length = 10

sketch3 = body.newObject("Sketcher::SketchObject", "Sketch002")
sketch3.AttachmentSupport = (doc.getObject("XY_Plane"), [""])
sketch3.MapMode = "FlatFace"
add_polygon(sketch3, [(-19, 20), (-19, 10), (11, 10), (11, 20)])
add_polygon(sketch3, [(21, 20), (21, 0), (41, 0), (41, 20)])
sketch3.addConstraint(Sketcher.Constraint("Vertical", 0))
sketch3.addConstraint(Sketcher.Constraint("Horizontal", 1))
sketch3.addConstraint(Sketcher.Constraint("Vertical", 2))
sketch3.addConstraint(Sketcher.Constraint("Horizontal", 3))
sketch3.addConstraint(Sketcher.Constraint("Vertical", 4))
sketch3.addConstraint(Sketcher.Constraint("Horizontal", 5))
sketch3.addConstraint(Sketcher.Constraint("Vertical", 6))
sketch3.addConstraint(Sketcher.Constraint("Horizontal", 7))
sketch3.addConstraint(Sketcher.Constraint("PointOnObject", 4, 2, -1))
sketch3.addConstraint(Sketcher.Constraint("Equal", 7, 4))
sketch3.addConstraint(Sketcher.Constraint("DistanceX", 1, 1, 1, 2, Q("30 mm")))
sketch3.addConstraint(Sketcher.Constraint("DistanceX", 5, 1, 5, 2, Q("20 mm")))
sketch3.addConstraint(Sketcher.Constraint("DistanceY", 0, 2, 0, 1, Q("10 mm")))
sketch3.addConstraint(Sketcher.Constraint("DistanceX", 1, 2, 4, 2, Q("10 mm")))
sketch3.addConstraint(Sketcher.Constraint("DistanceX", 0, 2, -1, 1, Q("18.84966 mm")))
sketch3.addConstraint(Sketcher.Constraint("DistanceY", -1, 1, 0, 2, Q("10.044863 mm")))
pad3 = body.newObject("PartDesign::Pad", "Pad002")
pad3.Profile = sketch3
pad3.Length = 4

sketch4 = body.newObject("Sketcher::SketchObject", "Sketch003")
sketch4.AttachmentSupport = (doc.getObject("XY_Plane"), [""])
sketch4.MapMode = "FlatFace"
add_polygon(sketch4, [(41, 30), (41, 22), (51, 22), (51, 30)])
sketch4.addConstraint(Sketcher.Constraint("Vertical", 0))
sketch4.addConstraint(Sketcher.Constraint("Horizontal", 1))
sketch4.addConstraint(Sketcher.Constraint("Vertical", 2))
sketch4.addConstraint(Sketcher.Constraint("Horizontal", 3))
sketch4.addConstraint(Sketcher.Constraint("DistanceX", 1, 1, 1, 2, Q("10 mm")))
sketch4.addConstraint(Sketcher.Constraint("DistanceY", 0, 2, 0, 1, Q("8 mm")))
sketch4.addConstraint(Sketcher.Constraint("DistanceX", -1, 1, 0, 2, Q("41.15034 mm")))
sketch4.addConstraint(Sketcher.Constraint("DistanceY", -1, 1, 0, 2, Q("22.044863 mm")))
pad4 = body.newObject("PartDesign::Pad", "Pad003")
pad4.Profile = sketch4
pad4.Length = 7

doc.recompute()
